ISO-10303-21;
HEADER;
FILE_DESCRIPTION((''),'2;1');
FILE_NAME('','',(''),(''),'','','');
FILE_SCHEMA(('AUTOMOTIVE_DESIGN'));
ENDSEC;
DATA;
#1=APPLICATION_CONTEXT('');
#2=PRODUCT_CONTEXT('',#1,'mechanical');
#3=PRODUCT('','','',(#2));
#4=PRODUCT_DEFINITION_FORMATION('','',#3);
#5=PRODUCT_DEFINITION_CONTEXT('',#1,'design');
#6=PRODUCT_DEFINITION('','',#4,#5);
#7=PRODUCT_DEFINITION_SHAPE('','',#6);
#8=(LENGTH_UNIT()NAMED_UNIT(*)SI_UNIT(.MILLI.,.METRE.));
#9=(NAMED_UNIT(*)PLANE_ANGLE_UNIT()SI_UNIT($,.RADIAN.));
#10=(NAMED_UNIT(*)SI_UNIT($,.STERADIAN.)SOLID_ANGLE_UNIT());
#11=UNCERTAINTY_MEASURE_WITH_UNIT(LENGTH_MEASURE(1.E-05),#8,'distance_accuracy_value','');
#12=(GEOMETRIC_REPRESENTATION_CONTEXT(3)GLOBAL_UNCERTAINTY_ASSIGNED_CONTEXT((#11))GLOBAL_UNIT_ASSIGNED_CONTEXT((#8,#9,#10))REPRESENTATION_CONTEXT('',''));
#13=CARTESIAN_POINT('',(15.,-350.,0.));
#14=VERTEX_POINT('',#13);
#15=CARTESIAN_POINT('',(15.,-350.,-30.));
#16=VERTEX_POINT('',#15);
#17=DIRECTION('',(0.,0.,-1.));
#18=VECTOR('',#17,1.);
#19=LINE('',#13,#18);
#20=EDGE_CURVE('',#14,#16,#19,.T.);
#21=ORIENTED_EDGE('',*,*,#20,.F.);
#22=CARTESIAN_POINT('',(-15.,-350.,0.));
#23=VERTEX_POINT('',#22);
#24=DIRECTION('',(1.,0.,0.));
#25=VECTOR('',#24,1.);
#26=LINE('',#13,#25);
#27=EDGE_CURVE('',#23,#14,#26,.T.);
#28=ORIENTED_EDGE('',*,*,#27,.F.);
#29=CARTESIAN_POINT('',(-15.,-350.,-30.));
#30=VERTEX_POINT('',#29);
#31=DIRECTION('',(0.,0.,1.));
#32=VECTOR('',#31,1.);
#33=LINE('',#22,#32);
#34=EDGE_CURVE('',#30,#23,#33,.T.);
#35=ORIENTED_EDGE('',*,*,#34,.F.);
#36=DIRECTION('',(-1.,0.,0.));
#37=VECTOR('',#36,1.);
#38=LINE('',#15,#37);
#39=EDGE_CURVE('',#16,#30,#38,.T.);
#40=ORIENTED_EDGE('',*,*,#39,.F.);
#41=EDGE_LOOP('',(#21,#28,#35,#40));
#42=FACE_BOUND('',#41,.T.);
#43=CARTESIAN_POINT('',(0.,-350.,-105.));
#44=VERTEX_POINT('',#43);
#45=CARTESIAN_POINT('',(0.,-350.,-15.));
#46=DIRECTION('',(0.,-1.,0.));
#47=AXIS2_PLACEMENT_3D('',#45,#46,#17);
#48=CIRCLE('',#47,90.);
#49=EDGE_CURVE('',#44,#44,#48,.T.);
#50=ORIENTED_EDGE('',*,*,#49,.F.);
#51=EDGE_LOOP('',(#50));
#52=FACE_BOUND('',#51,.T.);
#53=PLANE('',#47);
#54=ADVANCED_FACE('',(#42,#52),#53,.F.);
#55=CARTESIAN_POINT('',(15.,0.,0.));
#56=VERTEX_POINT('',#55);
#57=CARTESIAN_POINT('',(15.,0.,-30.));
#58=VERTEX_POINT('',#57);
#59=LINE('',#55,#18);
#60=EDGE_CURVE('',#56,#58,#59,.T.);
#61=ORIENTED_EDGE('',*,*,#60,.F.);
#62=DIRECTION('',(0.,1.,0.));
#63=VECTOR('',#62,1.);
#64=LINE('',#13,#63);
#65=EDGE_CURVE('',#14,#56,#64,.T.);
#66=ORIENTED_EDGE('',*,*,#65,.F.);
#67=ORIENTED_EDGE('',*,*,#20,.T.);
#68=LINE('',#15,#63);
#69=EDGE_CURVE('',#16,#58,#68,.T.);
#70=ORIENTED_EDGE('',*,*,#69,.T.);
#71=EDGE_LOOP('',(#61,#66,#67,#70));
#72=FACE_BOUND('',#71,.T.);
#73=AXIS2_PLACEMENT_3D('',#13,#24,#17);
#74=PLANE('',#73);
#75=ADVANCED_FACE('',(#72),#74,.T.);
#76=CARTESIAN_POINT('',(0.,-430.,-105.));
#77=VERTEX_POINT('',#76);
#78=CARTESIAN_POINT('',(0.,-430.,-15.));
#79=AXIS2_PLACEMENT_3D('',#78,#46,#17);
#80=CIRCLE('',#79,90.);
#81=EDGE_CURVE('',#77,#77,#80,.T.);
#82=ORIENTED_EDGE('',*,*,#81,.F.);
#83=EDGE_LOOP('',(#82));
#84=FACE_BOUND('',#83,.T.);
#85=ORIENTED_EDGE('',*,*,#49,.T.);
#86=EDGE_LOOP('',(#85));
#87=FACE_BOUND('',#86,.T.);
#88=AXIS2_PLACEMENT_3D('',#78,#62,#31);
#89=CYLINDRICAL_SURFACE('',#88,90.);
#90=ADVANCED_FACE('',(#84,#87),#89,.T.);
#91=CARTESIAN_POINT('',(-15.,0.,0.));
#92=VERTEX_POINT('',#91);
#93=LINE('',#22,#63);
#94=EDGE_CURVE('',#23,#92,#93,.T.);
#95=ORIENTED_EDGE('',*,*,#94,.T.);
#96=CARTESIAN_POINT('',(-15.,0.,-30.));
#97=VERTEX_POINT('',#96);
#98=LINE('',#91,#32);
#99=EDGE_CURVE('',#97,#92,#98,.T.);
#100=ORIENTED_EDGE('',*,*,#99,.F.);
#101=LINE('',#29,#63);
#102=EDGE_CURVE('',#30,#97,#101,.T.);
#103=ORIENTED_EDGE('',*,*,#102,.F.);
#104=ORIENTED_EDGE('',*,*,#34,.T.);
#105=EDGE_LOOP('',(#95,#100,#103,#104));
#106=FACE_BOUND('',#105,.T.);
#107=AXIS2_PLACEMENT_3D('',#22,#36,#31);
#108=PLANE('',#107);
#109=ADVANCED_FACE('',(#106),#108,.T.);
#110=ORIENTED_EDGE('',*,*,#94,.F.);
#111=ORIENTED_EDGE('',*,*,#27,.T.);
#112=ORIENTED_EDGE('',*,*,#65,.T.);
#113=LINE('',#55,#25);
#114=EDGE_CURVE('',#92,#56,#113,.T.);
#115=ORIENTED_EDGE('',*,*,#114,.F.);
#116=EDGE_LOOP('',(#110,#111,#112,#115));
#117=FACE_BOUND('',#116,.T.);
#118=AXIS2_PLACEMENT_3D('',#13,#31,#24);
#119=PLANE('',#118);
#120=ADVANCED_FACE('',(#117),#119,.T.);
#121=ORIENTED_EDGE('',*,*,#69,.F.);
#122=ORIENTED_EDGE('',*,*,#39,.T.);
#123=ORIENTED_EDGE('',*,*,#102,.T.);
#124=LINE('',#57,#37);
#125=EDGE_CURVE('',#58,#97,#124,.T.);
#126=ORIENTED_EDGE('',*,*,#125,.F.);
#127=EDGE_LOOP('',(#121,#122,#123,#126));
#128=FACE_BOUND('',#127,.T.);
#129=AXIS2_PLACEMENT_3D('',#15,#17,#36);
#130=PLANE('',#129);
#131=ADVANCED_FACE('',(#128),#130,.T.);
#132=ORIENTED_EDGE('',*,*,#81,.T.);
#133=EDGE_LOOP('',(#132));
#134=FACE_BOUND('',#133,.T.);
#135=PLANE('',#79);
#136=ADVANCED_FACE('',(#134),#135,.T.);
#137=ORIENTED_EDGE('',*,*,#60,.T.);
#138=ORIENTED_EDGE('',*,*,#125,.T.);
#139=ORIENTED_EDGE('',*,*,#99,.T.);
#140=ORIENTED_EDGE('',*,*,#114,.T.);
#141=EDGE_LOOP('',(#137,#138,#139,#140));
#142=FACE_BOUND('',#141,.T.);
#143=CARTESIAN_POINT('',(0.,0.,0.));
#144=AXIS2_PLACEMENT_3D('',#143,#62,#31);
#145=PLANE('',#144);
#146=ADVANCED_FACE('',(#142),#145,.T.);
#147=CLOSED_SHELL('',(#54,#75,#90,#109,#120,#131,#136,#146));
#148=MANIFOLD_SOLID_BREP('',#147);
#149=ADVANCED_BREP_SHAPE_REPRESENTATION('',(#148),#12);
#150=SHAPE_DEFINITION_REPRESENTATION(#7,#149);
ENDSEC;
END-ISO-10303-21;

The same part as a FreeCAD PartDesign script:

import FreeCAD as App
import Part
import Sketcher


def add_polygon(sketch, points):
    """Adds a closed chain of lines whose ends are joined by coincident constraints."""
    first, n = sketch.GeometryCount, len(points)
    for a, b in zip(points, points[1:] + points[:1]):
        sketch.addGeometry(Part.LineSegment(App.Vector(*a, 0), App.Vector(*b, 0)), False)
    for i in range(n):
        sketch.addConstraint(Sketcher.Constraint("Coincident", first + i, 2, first + (i + 1) % n, 1))

doc = App.newDocument("Part")
params = doc.addObject("Spreadsheet::Sheet", "Params")
for row, (alias, value) in enumerate([
    ("sketch1_width", "30 mm"),
    ("pad1_length", "350 mm"),
    ("sketch2_diameter", "180 mm"),
    ("pad2_length", "80 mm"),
], start=1):
    params.set(f"A{row}", alias)
    params.set(f"B{row}", "=" + value)
    params.setAlias(f"B{row}", alias)

body = doc.addObject("PartDesign::Body", "Body")

# Sketch on XZ plane
sketch1 = doc.addObject("Sketcher::SketchObject", "Sketch")
body.addObject(sketch1)
sketch1.AttachmentSupport = (doc.XZ_Plane, [""])
sketch1.MapMode = "FlatFace"
add_polygon(sketch1, [(-15, -30), (-15, 0), (15, 0), (15, -30)])  # lines 0-3
sketch1.addConstraint([
    Sketcher.Constraint("Vertical", 0),
    Sketcher.Constraint("Horizontal", 1),
    Sketcher.Constraint("Vertical", 2),
    Sketcher.Constraint("Horizontal", 3),
    Sketcher.Constraint("Symmetric", 0, 2, 1, 2, -1, 1),
    Sketcher.Constraint("Equal", 3, 0),
    Sketcher.Constraint("DistanceX", 1, 1, 1, 2, 30.0),
])
sketch1.setExpression("Constraints[10]", "Params.sketch1_width")
pad1 = doc.addObject("PartDesign::Pad", "Pad")
body.addObject(pad1)
pad1.Profile = sketch1
pad1.setExpression("Length", "Params.pad1_length")

# Sketch on XZ plane
sketch2 = doc.addObject("Sketcher::SketchObject", "Sketch001")
body.addObject(sketch2)
sketch2.AttachmentSupport = (doc.XZ_Plane, [""])
sketch2.MapMode = "FlatFace"
sketch2.AttachmentOffset = App.Placement(App.Vector(0, 0, 350), App.Rotation())
sketch2.addGeometry(Part.Circle(App.Vector(0, -15, 0), App.Vector(0, 0, 1), 90), False)
sketch2.addConstraint([
    Sketcher.Constraint("PointOnObject", 0, 3, -2),
    Sketcher.Constraint("Diameter", 0, 180.0),
    Sketcher.Constraint("DistanceY", 0, 3, -1, 1, 15.0),
])
sketch2.setExpression("Constraints[1]", "Params.sketch2_diameter")
pad2 = doc.addObject("PartDesign::Pad", "Pad001")
body.addObject(pad2)
pad2.Profile = sketch2
pad2.setExpression("Length", "Params.pad2_length")

doc.recompute()
